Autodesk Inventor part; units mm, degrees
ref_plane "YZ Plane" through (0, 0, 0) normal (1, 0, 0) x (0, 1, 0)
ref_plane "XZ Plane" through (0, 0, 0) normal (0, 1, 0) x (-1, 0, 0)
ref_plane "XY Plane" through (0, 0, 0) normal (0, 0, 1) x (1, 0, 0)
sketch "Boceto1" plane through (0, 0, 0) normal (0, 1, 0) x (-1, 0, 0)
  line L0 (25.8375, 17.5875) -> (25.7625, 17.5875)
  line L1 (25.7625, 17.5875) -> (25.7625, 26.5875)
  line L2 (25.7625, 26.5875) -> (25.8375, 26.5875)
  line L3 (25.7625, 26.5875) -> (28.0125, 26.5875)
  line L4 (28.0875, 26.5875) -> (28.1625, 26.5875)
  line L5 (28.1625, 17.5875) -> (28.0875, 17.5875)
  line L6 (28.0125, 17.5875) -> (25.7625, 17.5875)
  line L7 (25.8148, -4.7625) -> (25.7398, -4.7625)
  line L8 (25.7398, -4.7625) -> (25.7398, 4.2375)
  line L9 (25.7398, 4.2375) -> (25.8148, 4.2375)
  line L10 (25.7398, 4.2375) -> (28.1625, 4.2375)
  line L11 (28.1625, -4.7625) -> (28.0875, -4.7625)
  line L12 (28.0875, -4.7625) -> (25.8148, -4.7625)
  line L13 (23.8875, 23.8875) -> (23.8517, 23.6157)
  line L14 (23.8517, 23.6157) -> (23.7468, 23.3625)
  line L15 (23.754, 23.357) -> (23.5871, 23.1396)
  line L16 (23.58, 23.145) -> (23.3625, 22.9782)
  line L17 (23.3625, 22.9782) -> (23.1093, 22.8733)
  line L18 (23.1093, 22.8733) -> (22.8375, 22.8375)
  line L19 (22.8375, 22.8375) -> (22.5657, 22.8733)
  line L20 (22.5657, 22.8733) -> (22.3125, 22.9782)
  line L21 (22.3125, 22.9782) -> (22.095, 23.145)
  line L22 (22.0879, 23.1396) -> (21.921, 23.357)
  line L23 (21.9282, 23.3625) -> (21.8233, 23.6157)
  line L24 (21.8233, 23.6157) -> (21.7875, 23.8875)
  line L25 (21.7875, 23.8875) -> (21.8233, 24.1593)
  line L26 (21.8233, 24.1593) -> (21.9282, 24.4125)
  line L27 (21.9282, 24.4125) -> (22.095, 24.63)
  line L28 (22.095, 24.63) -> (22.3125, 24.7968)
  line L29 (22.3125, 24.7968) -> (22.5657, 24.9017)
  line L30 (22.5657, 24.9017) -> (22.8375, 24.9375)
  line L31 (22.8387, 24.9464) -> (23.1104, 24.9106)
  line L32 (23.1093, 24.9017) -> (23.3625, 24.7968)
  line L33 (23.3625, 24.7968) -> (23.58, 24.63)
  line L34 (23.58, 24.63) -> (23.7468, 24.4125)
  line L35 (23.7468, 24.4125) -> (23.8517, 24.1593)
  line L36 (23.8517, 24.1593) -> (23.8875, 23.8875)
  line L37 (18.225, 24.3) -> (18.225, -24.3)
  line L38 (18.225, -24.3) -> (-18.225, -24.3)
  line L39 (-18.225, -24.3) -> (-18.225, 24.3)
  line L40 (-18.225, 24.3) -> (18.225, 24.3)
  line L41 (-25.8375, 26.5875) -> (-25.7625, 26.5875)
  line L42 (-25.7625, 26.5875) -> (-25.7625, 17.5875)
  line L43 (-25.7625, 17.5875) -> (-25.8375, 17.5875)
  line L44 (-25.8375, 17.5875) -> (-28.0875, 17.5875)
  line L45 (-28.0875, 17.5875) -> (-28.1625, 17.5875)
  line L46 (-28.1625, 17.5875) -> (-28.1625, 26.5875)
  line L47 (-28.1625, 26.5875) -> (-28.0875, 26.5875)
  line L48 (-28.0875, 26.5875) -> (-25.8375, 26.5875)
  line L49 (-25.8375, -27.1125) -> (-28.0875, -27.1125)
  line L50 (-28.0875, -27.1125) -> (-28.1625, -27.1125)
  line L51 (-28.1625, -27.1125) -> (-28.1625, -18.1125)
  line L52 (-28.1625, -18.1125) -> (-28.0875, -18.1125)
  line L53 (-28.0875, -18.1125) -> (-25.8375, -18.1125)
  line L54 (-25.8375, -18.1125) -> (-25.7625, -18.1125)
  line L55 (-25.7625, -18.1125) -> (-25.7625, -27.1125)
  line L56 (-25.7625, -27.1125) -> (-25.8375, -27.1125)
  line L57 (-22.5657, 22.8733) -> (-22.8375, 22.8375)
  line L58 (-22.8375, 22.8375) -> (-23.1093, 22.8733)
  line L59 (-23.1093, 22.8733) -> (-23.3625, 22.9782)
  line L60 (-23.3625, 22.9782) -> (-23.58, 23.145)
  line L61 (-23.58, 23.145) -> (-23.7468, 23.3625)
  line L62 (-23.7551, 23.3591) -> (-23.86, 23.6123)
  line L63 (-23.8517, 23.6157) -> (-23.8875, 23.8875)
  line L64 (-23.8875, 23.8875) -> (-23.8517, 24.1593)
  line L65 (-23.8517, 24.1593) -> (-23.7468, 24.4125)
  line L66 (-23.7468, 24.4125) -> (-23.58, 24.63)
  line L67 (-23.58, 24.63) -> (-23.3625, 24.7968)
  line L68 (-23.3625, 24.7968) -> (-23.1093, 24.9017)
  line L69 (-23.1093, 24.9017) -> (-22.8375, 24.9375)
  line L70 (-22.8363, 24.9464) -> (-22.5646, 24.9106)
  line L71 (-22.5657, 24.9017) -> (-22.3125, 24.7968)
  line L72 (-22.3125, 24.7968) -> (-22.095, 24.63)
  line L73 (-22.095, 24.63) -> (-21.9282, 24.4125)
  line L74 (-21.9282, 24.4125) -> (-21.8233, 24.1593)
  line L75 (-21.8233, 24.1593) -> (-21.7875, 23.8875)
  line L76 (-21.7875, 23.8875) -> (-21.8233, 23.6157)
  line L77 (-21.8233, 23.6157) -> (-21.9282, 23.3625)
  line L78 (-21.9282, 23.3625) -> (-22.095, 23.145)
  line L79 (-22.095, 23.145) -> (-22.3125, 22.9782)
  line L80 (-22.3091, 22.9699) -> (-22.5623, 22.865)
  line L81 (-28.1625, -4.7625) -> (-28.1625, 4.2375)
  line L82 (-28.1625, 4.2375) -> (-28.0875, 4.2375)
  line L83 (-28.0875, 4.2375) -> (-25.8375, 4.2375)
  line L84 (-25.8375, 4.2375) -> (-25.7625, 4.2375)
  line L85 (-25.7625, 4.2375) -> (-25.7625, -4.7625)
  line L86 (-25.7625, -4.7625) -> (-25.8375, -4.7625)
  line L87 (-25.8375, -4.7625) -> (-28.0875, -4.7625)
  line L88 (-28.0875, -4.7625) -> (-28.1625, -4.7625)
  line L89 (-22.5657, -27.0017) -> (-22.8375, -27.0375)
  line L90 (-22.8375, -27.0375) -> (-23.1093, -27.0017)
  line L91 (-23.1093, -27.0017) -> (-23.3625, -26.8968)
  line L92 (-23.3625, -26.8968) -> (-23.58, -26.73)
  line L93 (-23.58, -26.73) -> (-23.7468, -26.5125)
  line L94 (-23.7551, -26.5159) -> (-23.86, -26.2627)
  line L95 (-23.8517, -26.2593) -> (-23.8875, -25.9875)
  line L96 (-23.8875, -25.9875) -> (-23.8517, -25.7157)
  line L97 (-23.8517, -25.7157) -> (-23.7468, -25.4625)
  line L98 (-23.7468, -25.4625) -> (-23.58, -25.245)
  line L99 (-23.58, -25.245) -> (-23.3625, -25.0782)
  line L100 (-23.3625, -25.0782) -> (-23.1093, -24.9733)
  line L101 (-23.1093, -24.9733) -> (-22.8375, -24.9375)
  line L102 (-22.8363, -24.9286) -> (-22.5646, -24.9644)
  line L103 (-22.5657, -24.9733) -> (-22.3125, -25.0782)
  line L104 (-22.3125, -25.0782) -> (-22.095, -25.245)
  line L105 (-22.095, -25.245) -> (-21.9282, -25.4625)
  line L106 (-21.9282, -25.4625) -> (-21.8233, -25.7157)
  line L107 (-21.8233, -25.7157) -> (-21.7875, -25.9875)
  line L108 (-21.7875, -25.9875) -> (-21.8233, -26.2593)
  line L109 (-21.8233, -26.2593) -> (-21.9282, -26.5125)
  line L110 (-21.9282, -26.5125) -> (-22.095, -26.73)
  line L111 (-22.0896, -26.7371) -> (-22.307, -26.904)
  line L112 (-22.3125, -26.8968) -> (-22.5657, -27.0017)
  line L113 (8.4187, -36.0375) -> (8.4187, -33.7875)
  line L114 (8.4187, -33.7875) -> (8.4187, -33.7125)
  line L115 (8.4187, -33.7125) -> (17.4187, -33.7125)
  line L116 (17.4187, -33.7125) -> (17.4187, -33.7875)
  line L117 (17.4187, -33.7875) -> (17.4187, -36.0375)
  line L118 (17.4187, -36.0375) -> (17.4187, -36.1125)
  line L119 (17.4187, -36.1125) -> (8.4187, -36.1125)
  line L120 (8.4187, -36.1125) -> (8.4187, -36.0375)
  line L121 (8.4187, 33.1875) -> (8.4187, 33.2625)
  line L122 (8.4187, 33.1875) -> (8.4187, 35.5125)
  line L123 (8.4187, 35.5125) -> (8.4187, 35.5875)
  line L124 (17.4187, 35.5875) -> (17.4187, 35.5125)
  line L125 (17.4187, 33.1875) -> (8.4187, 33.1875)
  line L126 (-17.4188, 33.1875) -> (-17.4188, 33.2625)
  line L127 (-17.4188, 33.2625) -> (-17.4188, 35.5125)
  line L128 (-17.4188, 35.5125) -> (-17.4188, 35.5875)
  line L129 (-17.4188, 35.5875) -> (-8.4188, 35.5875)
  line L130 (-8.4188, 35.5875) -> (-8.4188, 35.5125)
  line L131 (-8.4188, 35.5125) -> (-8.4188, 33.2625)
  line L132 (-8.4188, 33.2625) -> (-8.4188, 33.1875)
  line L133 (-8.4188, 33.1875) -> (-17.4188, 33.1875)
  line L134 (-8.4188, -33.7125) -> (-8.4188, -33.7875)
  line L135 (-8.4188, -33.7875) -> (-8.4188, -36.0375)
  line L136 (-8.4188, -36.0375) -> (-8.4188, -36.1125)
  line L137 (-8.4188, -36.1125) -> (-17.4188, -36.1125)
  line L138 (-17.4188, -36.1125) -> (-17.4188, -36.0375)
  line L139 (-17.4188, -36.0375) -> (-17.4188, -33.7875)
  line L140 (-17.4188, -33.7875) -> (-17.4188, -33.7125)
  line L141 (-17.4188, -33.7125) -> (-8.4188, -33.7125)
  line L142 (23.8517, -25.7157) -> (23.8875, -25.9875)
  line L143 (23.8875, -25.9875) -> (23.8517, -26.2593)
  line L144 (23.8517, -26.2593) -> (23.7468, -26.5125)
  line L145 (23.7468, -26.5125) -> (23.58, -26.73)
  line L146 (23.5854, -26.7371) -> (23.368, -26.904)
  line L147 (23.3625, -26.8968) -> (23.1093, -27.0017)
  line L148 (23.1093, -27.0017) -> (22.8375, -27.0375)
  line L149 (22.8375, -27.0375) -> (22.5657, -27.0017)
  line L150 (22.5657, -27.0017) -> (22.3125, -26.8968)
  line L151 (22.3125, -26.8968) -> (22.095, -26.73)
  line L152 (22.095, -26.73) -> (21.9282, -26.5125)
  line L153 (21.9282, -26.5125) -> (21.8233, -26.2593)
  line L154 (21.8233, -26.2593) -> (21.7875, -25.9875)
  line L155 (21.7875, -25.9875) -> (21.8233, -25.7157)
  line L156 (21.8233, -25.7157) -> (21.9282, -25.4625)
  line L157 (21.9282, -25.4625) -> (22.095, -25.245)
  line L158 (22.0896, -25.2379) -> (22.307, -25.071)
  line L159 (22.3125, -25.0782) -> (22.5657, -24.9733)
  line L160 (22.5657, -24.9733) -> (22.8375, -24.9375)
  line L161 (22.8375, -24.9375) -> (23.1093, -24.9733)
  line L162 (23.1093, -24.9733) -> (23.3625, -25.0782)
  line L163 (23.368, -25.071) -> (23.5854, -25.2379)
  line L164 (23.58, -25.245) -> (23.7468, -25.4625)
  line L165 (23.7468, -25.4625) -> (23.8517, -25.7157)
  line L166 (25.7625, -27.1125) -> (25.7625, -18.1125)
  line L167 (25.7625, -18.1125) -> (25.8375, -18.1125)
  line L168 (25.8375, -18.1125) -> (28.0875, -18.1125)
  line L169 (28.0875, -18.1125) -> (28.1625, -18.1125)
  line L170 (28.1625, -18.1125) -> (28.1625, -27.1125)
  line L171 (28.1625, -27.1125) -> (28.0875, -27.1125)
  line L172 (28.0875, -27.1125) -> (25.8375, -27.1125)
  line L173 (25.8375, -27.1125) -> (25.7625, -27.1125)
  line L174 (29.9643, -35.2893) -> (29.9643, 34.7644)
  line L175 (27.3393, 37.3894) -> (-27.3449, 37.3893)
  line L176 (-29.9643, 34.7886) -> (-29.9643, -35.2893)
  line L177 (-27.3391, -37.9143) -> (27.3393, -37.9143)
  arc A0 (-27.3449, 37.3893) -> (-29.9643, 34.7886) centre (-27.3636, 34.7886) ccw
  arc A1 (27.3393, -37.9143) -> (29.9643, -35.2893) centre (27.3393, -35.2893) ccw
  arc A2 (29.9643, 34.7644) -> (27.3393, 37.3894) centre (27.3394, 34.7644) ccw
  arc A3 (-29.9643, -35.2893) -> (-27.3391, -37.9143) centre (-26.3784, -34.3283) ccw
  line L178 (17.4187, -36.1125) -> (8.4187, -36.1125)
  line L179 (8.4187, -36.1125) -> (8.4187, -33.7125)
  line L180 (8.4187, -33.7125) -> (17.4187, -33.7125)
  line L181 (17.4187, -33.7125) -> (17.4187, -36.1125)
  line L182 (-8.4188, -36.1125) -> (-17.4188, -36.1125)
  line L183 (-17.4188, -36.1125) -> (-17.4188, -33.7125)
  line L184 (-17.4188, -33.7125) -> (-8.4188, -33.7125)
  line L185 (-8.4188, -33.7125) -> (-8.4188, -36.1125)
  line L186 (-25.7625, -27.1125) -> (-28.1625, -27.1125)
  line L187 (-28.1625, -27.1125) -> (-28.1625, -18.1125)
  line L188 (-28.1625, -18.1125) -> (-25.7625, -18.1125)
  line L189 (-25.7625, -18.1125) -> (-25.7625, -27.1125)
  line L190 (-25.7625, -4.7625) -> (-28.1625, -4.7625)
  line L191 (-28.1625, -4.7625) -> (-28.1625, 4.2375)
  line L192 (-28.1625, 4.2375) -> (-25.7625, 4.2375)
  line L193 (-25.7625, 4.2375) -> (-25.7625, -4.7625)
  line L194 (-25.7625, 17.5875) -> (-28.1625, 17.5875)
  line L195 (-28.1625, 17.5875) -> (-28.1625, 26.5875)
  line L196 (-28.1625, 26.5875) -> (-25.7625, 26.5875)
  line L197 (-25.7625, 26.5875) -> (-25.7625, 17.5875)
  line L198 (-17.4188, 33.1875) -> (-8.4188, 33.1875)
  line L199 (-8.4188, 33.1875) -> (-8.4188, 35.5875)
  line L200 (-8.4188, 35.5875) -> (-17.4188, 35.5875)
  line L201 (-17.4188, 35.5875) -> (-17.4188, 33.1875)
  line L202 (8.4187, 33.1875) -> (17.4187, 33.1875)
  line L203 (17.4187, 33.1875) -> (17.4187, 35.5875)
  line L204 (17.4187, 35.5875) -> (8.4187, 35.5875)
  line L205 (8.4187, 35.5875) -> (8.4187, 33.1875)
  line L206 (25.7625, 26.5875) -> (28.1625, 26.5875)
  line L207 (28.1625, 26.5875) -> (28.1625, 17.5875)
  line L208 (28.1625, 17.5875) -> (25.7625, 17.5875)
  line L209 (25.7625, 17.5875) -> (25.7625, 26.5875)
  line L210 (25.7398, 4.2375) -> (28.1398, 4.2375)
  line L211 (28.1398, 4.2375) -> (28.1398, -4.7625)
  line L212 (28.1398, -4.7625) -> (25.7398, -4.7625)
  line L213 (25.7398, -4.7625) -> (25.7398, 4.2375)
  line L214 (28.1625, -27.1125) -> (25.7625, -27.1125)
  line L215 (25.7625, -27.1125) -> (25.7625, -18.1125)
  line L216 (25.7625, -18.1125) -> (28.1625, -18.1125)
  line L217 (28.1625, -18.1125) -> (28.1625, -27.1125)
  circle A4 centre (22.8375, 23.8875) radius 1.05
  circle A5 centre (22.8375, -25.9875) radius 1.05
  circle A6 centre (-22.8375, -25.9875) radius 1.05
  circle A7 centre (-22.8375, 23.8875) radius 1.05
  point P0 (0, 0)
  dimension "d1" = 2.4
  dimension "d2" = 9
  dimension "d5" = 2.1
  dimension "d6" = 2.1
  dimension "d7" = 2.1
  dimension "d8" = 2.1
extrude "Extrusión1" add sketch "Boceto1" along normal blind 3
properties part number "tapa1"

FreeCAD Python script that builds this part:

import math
import FreeCAD as App
import Part
import Sketcher
from FreeCAD import Vector

doc = App.newDocument("Part")
params = doc.addObject("Spreadsheet::Sheet", "Params")
for row, (alias, value) in enumerate([
    ("sketch1_diameter", "2.1 mm"),
    ("sketch1_diameter2", "2.1 mm"),
    ("sketch1_diameter3", "2.1 mm"),
    ("sketch1_diameter4", "2.1 mm"),
    ("sketch1_width", "9 mm"),
    ("pad1_length", "3 mm"),
], start=1):
    params.set(f"A{row}", alias)
    params.set(f"B{row}", "=" + value)
    params.setAlias(f"B{row}", alias)

body = doc.addObject("PartDesign::Body", "Body")

# Sketch on XZ plane
sketch1 = body.newObject("Sketcher::SketchObject", "Sketch")
sketch1.AttachmentSupport = (doc.getObject("XZ_Plane"), [""])
sketch1.MapMode = "FlatFace"
sketch1.addGeometry(Part.ArcOfCircle(Part.Circle(Vector(-27.3393, -35.2893, 0), Vector(0, 0, 1), 2.625), math.radians(180), math.radians(270)), False)
sketch1.addGeometry(Part.LineSegment(Vector(-29.9643, -35.2893, 0), Vector(-29.9643, 34.7644, 0)), False)
sketch1.addGeometry(Part.ArcOfCircle(Part.Circle(Vector(-27.3394, 34.7644, 0), Vector(0, 0, 1), 2.6249), math.radians(89.997817), math.radians(180)), False)
sketch1.addGeometry(Part.LineSegment(Vector(-27.3393, 37.3894, 0), Vector(27.3449, 37.3893, 0)), False)
sketch1.addGeometry(Part.ArcOfCircle(Part.Circle(Vector(27.3636, 34.7886, 0), Vector(0, 0, 1), 2.600767), math.radians(0), math.radians(90.411971)), False)
sketch1.addGeometry(Part.LineSegment(Vector(29.9643, 34.7886, 0), Vector(29.9643, -35.2893, 0)), False)
sketch1.addGeometry(Part.ArcOfCircle(Part.Circle(Vector(26.3784, -34.3283, 0), Vector(0, 0, 1), 3.712439), math.radians(-75.002472), math.radians(-15.0024)), False)
sketch1.addGeometry(Part.LineSegment(Vector(27.3391, -37.9143, 0), Vector(-27.3393, -37.9143, 0)), False)
sketch1.addGeometry(Part.Circle(Vector(22.8375, -25.9875, 0), Vector(0, 0, 1), 1.05), False)
sketch1.addGeometry(Part.LineSegment(Vector(25.7625, -27.1125, 0), Vector(28.1625, -27.1125, 0)), False)
sketch1.addGeometry(Part.LineSegment(Vector(28.1625, -27.1125, 0), Vector(28.1625, -18.1125, 0)), False)
sketch1.addGeometry(Part.LineSegment(Vector(28.1625, -18.1125, 0), Vector(25.7625, -18.1125, 0)), False)
sketch1.addGeometry(Part.LineSegment(Vector(25.7625, -18.1125, 0), Vector(25.7625, -27.1125, 0)), False)
sketch1.addGeometry(Part.LineSegment(Vector(17.4188, -33.7125, 0), Vector(8.4188, -33.7125, 0)), False)
sketch1.addGeometry(Part.LineSegment(Vector(8.4188, -33.7125, 0), Vector(8.4188, -36.1125, 0)), False)
sketch1.addGeometry(Part.LineSegment(Vector(8.4188, -36.1125, 0), Vector(17.4188, -36.1125, 0)), False)
sketch1.addGeometry(Part.LineSegment(Vector(17.4188, -36.1125, 0), Vector(17.4188, -33.7125, 0)), False)
sketch1.addGeometry(Part.LineSegment(Vector(25.7625, -4.7625, 0), Vector(28.1625, -4.7625, 0)), False)
sketch1.addGeometry(Part.LineSegment(Vector(28.1625, -4.7625, 0), Vector(28.1625, 4.2375, 0)), False)
sketch1.addGeometry(Part.LineSegment(Vector(28.1625, 4.2375, 0), Vector(25.7625, 4.2375, 0)), False)
sketch1.addGeometry(Part.LineSegment(Vector(25.7625, 4.2375, 0), Vector(25.7625, -4.7625, 0)), False)
sketch1.addGeometry(Part.LineSegment(Vector(-8.4187, -36.1125, 0), Vector(-8.4187, -33.7125, 0)), False)
sketch1.addGeometry(Part.LineSegment(Vector(-8.4187, -33.7125, 0), Vector(-17.4187, -33.7125, 0)), False)
sketch1.addGeometry(Part.LineSegment(Vector(-17.4187, -33.7125, 0), Vector(-17.4187, -36.1125, 0)), False)
sketch1.addGeometry(Part.LineSegment(Vector(-17.4187, -36.1125, 0), Vector(-8.4187, -36.1125, 0)), False)
sketch1.addGeometry(Part.Circle(Vector(-22.8375, -25.9875, 0), Vector(0, 0, 1), 1.05), False)
sketch1.addGeometry(Part.LineSegment(Vector(-28.1625, -27.1125, 0), Vector(-25.7625, -27.1125, 0)), False)
sketch1.addGeometry(Part.LineSegment(Vector(-25.7625, -27.1125, 0), Vector(-25.7625, -18.1125, 0)), False)
sketch1.addGeometry(Part.LineSegment(Vector(-25.7625, -18.1125, 0), Vector(-28.1625, -18.1125, 0)), False)
sketch1.addGeometry(Part.LineSegment(Vector(-28.1625, -18.1125, 0), Vector(-28.1625, -27.1125, 0)), False)
sketch1.addGeometry(Part.LineSegment(Vector(-28.1398, -4.7625, 0), Vector(-25.7398, -4.7625, 0)), False)
sketch1.addGeometry(Part.LineSegment(Vector(-25.7398, -4.7625, 0), Vector(-25.7398, 4.2375, 0)), False)
sketch1.addGeometry(Part.LineSegment(Vector(-25.7398, 4.2375, 0), Vector(-28.1398, 4.2375, 0)), False)
sketch1.addGeometry(Part.LineSegment(Vector(-28.1398, 4.2375, 0), Vector(-28.1398, -4.7625, 0)), False)
sketch1.addGeometry(Part.LineSegment(Vector(28.1625, 26.5875, 0), Vector(25.7625, 26.5875, 0)), False)
sketch1.addGeometry(Part.LineSegment(Vector(25.7625, 26.5875, 0), Vector(25.7625, 17.5875, 0)), False)
sketch1.addGeometry(Part.LineSegment(Vector(25.7625, 17.5875, 0), Vector(28.1625, 17.5875, 0)), False)
sketch1.addGeometry(Part.LineSegment(Vector(28.1625, 17.5875, 0), Vector(28.1625, 26.5875, 0)), False)
sketch1.addGeometry(Part.Circle(Vector(22.8375, 23.8875, 0), Vector(0, 0, 1), 1.05), False)
sketch1.addGeometry(Part.LineSegment(Vector(8.4188, 33.1875, 0), Vector(17.4188, 33.1875, 0)), False)
sketch1.addGeometry(Part.LineSegment(Vector(17.4188, 33.1875, 0), Vector(17.4188, 35.5875, 0)), False)
sketch1.addGeometry(Part.LineSegment(Vector(17.4188, 35.5875, 0), Vector(8.4188, 35.5875, 0)), False)
sketch1.addGeometry(Part.LineSegment(Vector(8.4188, 35.5875, 0), Vector(8.4188, 33.1875, 0)), False)
sketch1.addGeometry(Part.LineSegment(Vector(18.225, 24.3, 0), Vector(-18.225, 24.3, 0)), False)
sketch1.addGeometry(Part.LineSegment(Vector(-18.225, 24.3, 0), Vector(-18.225, -24.3, 0)), False)
sketch1.addGeometry(Part.LineSegment(Vector(-18.225, -24.3, 0), Vector(18.225, -24.3, 0)), False)
sketch1.addGeometry(Part.LineSegment(Vector(18.225, -24.3, 0), Vector(18.225, 24.3, 0)), False)
sketch1.addGeometry(Part.LineSegment(Vector(-17.4187, 33.1875, 0), Vector(-8.4187, 33.1875, 0)), False)
sketch1.addGeometry(Part.LineSegment(Vector(-8.4187, 33.1875, 0), Vector(-8.4187, 35.5875, 0)), False)
sketch1.addGeometry(Part.LineSegment(Vector(-8.4187, 35.5875, 0), Vector(-17.4187, 35.5875, 0)), False)
sketch1.addGeometry(Part.LineSegment(Vector(-17.4187, 35.5875, 0), Vector(-17.4187, 33.1875, 0)), False)
sketch1.addGeometry(Part.LineSegment(Vector(-28.1625, 17.5875, 0), Vector(-25.7625, 17.5875, 0)), False)
sketch1.addGeometry(Part.LineSegment(Vector(-25.7625, 17.5875, 0), Vector(-25.7625, 26.5875, 0)), False)
sketch1.addGeometry(Part.LineSegment(Vector(-25.7625, 26.5875, 0), Vector(-28.1625, 26.5875, 0)), False)
sketch1.addGeometry(Part.LineSegment(Vector(-28.1625, 26.5875, 0), Vector(-28.1625, 17.5875, 0)), False)
sketch1.addGeometry(Part.Circle(Vector(-22.8375, 23.8875, 0), Vector(0, 0, 1), 1.05), False)
sketch1.addConstraint(Sketcher.Constraint("Coincident", 0, 1, 1, 1))
sketch1.addConstraint(Sketcher.Constraint("Coincident", 1, 2, 2, 2))
sketch1.addConstraint(Sketcher.Constraint("Coincident", 2, 1, 3, 1))
sketch1.addConstraint(Sketcher.Constraint("Coincident", 3, 2, 4, 2))
sketch1.addConstraint(Sketcher.Constraint("Coincident", 4, 1, 5, 1))
sketch1.addConstraint(Sketcher.Constraint("Coincident", 5, 2, 6, 2))
sketch1.addConstraint(Sketcher.Constraint("Coincident", 6, 1, 7, 1))
sketch1.addConstraint(Sketcher.Constraint("Coincident", 7, 2, 0, 2))
sketch1.addConstraint(Sketcher.Constraint("Coincident", 9, 2, 10, 1))
sketch1.addConstraint(Sketcher.Constraint("Coincident", 10, 2, 11, 1))
sketch1.addConstraint(Sketcher.Constraint("Coincident", 11, 2, 12, 1))
sketch1.addConstraint(Sketcher.Constraint("Coincident", 12, 2, 9, 1))
sketch1.addConstraint(Sketcher.Constraint("Coincident", 13, 2, 14, 1))
sketch1.addConstraint(Sketcher.Constraint("Coincident", 14, 2, 15, 1))
sketch1.addConstraint(Sketcher.Constraint("Coincident", 15, 2, 16, 1))
sketch1.addConstraint(Sketcher.Constraint("Coincident", 16, 2, 13, 1))
sketch1.addConstraint(Sketcher.Constraint("Coincident", 17, 2, 18, 1))
sketch1.addConstraint(Sketcher.Constraint("Coincident", 18, 2, 19, 1))
sketch1.addConstraint(Sketcher.Constraint("Coincident", 19, 2, 20, 1))
sketch1.addConstraint(Sketcher.Constraint("Coincident", 20, 2, 17, 1))
sketch1.addConstraint(Sketcher.Constraint("Coincident", 21, 2, 22, 1))
sketch1.addConstraint(Sketcher.Constraint("Coincident", 22, 2, 23, 1))
sketch1.addConstraint(Sketcher.Constraint("Coincident", 23, 2, 24, 1))
sketch1.addConstraint(Sketcher.Constraint("Coincident", 24, 2, 21, 1))
sketch1.addConstraint(Sketcher.Constraint("Coincident", 26, 2, 27, 1))
sketch1.addConstraint(Sketcher.Constraint("Coincident", 27, 2, 28, 1))
sketch1.addConstraint(Sketcher.Constraint("Coincident", 28, 2, 29, 1))
sketch1.addConstraint(Sketcher.Constraint("Coincident", 29, 2, 26, 1))
sketch1.addConstraint(Sketcher.Constraint("Coincident", 30, 2, 31, 1))
sketch1.addConstraint(Sketcher.Constraint("Coincident", 31, 2, 32, 1))
sketch1.addConstraint(Sketcher.Constraint("Coincident", 32, 2, 33, 1))
sketch1.addConstraint(Sketcher.Constraint("Coincident", 33, 2, 30, 1))
sketch1.addConstraint(Sketcher.Constraint("Coincident", 34, 2, 35, 1))
sketch1.addConstraint(Sketcher.Constraint("Coincident", 35, 2, 36, 1))
sketch1.addConstraint(Sketcher.Constraint("Coincident", 36, 2, 37, 1))
sketch1.addConstraint(Sketcher.Constraint("Coincident", 37, 2, 34, 1))
sketch1.addConstraint(Sketcher.Constraint("Coincident", 39, 2, 40, 1))
sketch1.addConstraint(Sketcher.Constraint("Coincident", 40, 2, 41, 1))
sketch1.addConstraint(Sketcher.Constraint("Coincident", 41, 2, 42, 1))
sketch1.addConstraint(Sketcher.Constraint("Coincident", 42, 2, 39, 1))
sketch1.addConstraint(Sketcher.Constraint("Coincident", 43, 2, 44, 1))
sketch1.addConstraint(Sketcher.Constraint("Coincident", 44, 2, 45, 1))
sketch1.addConstraint(Sketcher.Constraint("Coincident", 45, 2, 46, 1))
sketch1.addConstraint(Sketcher.Constraint("Coincident", 46, 2, 43, 1))
sketch1.addConstraint(Sketcher.Constraint("Coincident", 47, 2, 48, 1))
sketch1.addConstraint(Sketcher.Constraint("Coincident", 48, 2, 49, 1))
sketch1.addConstraint(Sketcher.Constraint("Coincident", 49, 2, 50, 1))
sketch1.addConstraint(Sketcher.Constraint("Coincident", 50, 2, 47, 1))
sketch1.addConstraint(Sketcher.Constraint("Coincident", 51, 2, 52, 1))
sketch1.addConstraint(Sketcher.Constraint("Coincident", 52, 2, 53, 1))
sketch1.addConstraint(Sketcher.Constraint("Coincident", 53, 2, 54, 1))
sketch1.addConstraint(Sketcher.Constraint("Coincident", 54, 2, 51, 1))
sketch1.addConstraint(Sketcher.Constraint("Vertical", 1))
sketch1.addConstraint(Sketcher.Constraint("Horizontal", 3))
sketch1.addConstraint(Sketcher.Constraint("Vertical", 5))
sketch1.addConstraint(Sketcher.Constraint("Horizontal", 7))
sketch1.addConstraint(Sketcher.Constraint("Horizontal", 9))
sketch1.addConstraint(Sketcher.Constraint("Vertical", 10))
sketch1.addConstraint(Sketcher.Constraint("Horizontal", 11))
sketch1.addConstraint(Sketcher.Constraint("Vertical", 12))
sketch1.addConstraint(Sketcher.Constraint("Horizontal", 13))
sketch1.addConstraint(Sketcher.Constraint("Vertical", 14))
sketch1.addConstraint(Sketcher.Constraint("Horizontal", 15))
sketch1.addConstraint(Sketcher.Constraint("Vertical", 16))
sketch1.addConstraint(Sketcher.Constraint("Horizontal", 17))
sketch1.addConstraint(Sketcher.Constraint("Vertical", 18))
sketch1.addConstraint(Sketcher.Constraint("Horizontal", 19))
sketch1.addConstraint(Sketcher.Constraint("Vertical", 20))
sketch1.addConstraint(Sketcher.Constraint("Vertical", 21))
sketch1.addConstraint(Sketcher.Constraint("Horizontal", 22))
sketch1.addConstraint(Sketcher.Constraint("Vertical", 23))
sketch1.addConstraint(Sketcher.Constraint("Horizontal", 24))
sketch1.addConstraint(Sketcher.Constraint("Horizontal", 26))
sketch1.addConstraint(Sketcher.Constraint("Vertical", 27))
sketch1.addConstraint(Sketcher.Constraint("Horizontal", 28))
sketch1.addConstraint(Sketcher.Constraint("Vertical", 29))
sketch1.addConstraint(Sketcher.Constraint("Horizontal", 30))
sketch1.addConstraint(Sketcher.Constraint("Vertical", 31))
sketch1.addConstraint(Sketcher.Constraint("Horizontal", 32))
sketch1.addConstraint(Sketcher.Constraint("Vertical", 33))
sketch1.addConstraint(Sketcher.Constraint("Horizontal", 34))
sketch1.addConstraint(Sketcher.Constraint("Vertical", 35))
sketch1.addConstraint(Sketcher.Constraint("Horizontal", 36))
sketch1.addConstraint(Sketcher.Constraint("Vertical", 37))
sketch1.addConstraint(Sketcher.Constraint("Horizontal", 39))
sketch1.addConstraint(Sketcher.Constraint("Vertical", 40))
sketch1.addConstraint(Sketcher.Constraint("Horizontal", 41))
sketch1.addConstraint(Sketcher.Constraint("Vertical", 42))
sketch1.addConstraint(Sketcher.Constraint("Horizontal", 43))
sketch1.addConstraint(Sketcher.Constraint("Vertical", 44))
sketch1.addConstraint(Sketcher.Constraint("Horizontal", 45))
sketch1.addConstraint(Sketcher.Constraint("Vertical", 46))
sketch1.addConstraint(Sketcher.Constraint("Horizontal", 47))
sketch1.addConstraint(Sketcher.Constraint("Vertical", 48))
sketch1.addConstraint(Sketcher.Constraint("Horizontal", 49))
sketch1.addConstraint(Sketcher.Constraint("Vertical", 50))
sketch1.addConstraint(Sketcher.Constraint("Horizontal", 51))
sketch1.addConstraint(Sketcher.Constraint("Vertical", 52))
sketch1.addConstraint(Sketcher.Constraint("Horizontal", 53))
sketch1.addConstraint(Sketcher.Constraint("Vertical", 54))
sketch1.addConstraint(Sketcher.Constraint("Diameter", 8, 2.1))
sketch1.addConstraint(Sketcher.Constraint("Diameter", 25, 2.1))
sketch1.addConstraint(Sketcher.Constraint("Diameter", 38, 2.1))
sketch1.addConstraint(Sketcher.Constraint("Diameter", 55, 2.1))
sketch1.addConstraint(Sketcher.Constraint("DistanceX", 13, 2, 13, 1, 9.0))
sketch1.addConstraint(Sketcher.Constraint("DistanceX", 22, 2, 22, 1, 9.0))
sketch1.addConstraint(Sketcher.Constraint("DistanceX", 39, 1, 39, 2, 9.0))
sketch1.addConstraint(Sketcher.Constraint("DistanceX", 47, 1, 47, 2, 9.0))
sketch1.addConstraint(Sketcher.Constraint("DistanceY", 10, 1, 10, 2, 9.0))
sketch1.addConstraint(Sketcher.Constraint("DistanceY", 18, 1, 18, 2, 9.0))
sketch1.addConstraint(Sketcher.Constraint("DistanceY", 27, 1, 27, 2, 9.0))
sketch1.addConstraint(Sketcher.Constraint("DistanceY", 31, 1, 31, 2, 9.0))
sketch1.addConstraint(Sketcher.Constraint("DistanceY", 35, 2, 35, 1, 9.0))
sketch1.addConstraint(Sketcher.Constraint("DistanceY", 52, 1, 52, 2, 9.0))
sketch1.addConstraint(Sketcher.Constraint("DistanceX", 9, 1, 9, 2, 2.4))
sketch1.addConstraint(Sketcher.Constraint("DistanceX", 17, 1, 17, 2, 2.4))
sketch1.addConstraint(Sketcher.Constraint("DistanceX", 26, 1, 26, 2, 2.4))
sketch1.addConstraint(Sketcher.Constraint("DistanceX", 30, 1, 30, 2, 2.4))
sketch1.addConstraint(Sketcher.Constraint("DistanceX", 34, 2, 34, 1, 2.4))
sketch1.addConstraint(Sketcher.Constraint("DistanceX", 51, 1, 51, 2, 2.4))
sketch1.addConstraint(Sketcher.Constraint("DistanceY", 14, 2, 14, 1, 2.4))
sketch1.addConstraint(Sketcher.Constraint("DistanceY", 21, 1, 21, 2, 2.4))
sketch1.addConstraint(Sketcher.Constraint("DistanceY", 40, 1, 40, 2, 2.4))
sketch1.addConstraint(Sketcher.Constraint("DistanceY", 48, 1, 48, 2, 2.4))
sketch1.addConstraint(Sketcher.Constraint("DistanceY", 14, 2, 12, 2, 9.0))
sketch1.addConstraint(Sketcher.Constraint("DistanceY", 34, 2, 40, 2, 9.0))
sketch1.addConstraint(Sketcher.Constraint("DistanceX", 11, 2, 17, 2, 2.4))
sketch1.addConstraint(Sketcher.Constraint("DistanceY", 14, 2, 21, 2, 2.4))
sketch1.addConstraint(Sketcher.Constraint("DistanceX", 35, 2, 18, 2, 2.4))
sketch1.addConstraint(Sketcher.Constraint("DistanceY", 47, 2, 41, 2, 2.4))
sketch1.addConstraint(Sketcher.Constraint("DistanceY", 44, 2, 44, 1, 48.6))
sketch1.addConstraint(Sketcher.Constraint("Radius", 0, 2.625))
sketch1.addConstraint(Sketcher.Constraint("Radius", 2, 2.625))
sketch1.addConstraint(Sketcher.Constraint("DistanceX", 25, 3, 9, 2, 51.0))
sketch1.addConstraint(Sketcher.Constraint("DistanceX", 43, 2, 43, 1, 36.45))
sketch1.addConstraint(Sketcher.Constraint("DistanceY", -1, 1, 43, 2, 24.3))
sketch1.addConstraint(Sketcher.Constraint("Radius", 4, 2.6008))
sketch1.addConstraint(Sketcher.Constraint("Radius", 6, 3.7124))
sketch1.addConstraint(Sketcher.Constraint("DistanceY", 22, 2, 26, 2, 6.6))
sketch1.addConstraint(Sketcher.Constraint("DistanceY", 38, 3, 34, 2, 2.7))
sketch1.addConstraint(Sketcher.Constraint("DistanceY", 55, 3, 47, 2, 9.3))
sketch1.addConstraint(Sketcher.Constraint("DistanceY", 51, 2, 55, 3, 6.3))
sketch1.addConstraint(Sketcher.Constraint("DistanceY", 5, 2, 5, 1, 70.078))
sketch1.addConstraint(Sketcher.Constraint("DistanceY", 10, 2, 17, 2, 13.35))
sketch1.addConstraint(Sketcher.Constraint("DistanceY", 18, 2, 38, 3, 19.65))
sketch1.addConstraint(Sketcher.Constraint("DistanceY", 27, 2, 30, 2, 13.35))
sketch1.addConstraint(Sketcher.Constraint("DistanceX", 3, 1, 3, 2, 54.6842))
sketch1.addConstraint(Sketcher.Constraint("DistanceX", 7, 2, 7, 1, 54.6784))
sketch1.addConstraint(Sketcher.Constraint("DistanceY", 1, 1, 1, 2, 70.0537))
sketch1.addConstraint(Sketcher.Constraint("DistanceX", -1, 1, 3, 2, 27.345))
sketch1.addConstraint(Sketcher.Constraint("DistanceX", -1, 1, 6, 1, 27.339))
sketch1.addConstraint(Sketcher.Constraint("DistanceX", 43, 2, -1, 1, 18.225))
sketch1.addConstraint(Sketcher.Constraint("DistanceX", 2, 3, 4, 3, 54.703))
sketch1.addConstraint(Sketcher.Constraint("DistanceY", 0, 3, 4, 3, 70.078))
sketch1.addConstraint(Sketcher.Constraint("DistanceY", 0, 3, 6, 3, 0.961))
sketch1.addConstraint(Sketcher.Constraint("DistanceX", 8, 3, 6, 3, 3.541))
sketch1.addConstraint(Sketcher.Constraint("DistanceX", 8, 3, 4, 3, 4.526))
sketch1.addConstraint(Sketcher.Constraint("DistanceY", 8, 3, 4, 3, 60.776))
sketch1.addConstraint(Sketcher.Constraint("DistanceX", 25, 3, 8, 3, 45.675))
sketch1.addConstraint(Sketcher.Constraint("DistanceY", 25, 3, 2, 3, 60.752))
sketch1.addConstraint(Sketcher.Constraint("DistanceX", 38, 3, 4, 3, 4.526))
sketch1.addConstraint(Sketcher.Constraint("DistanceY", 38, 3, 4, 3, 10.901))
sketch1.addConstraint(Sketcher.Constraint("DistanceX", 2, 3, 55, 3, 4.502))
sketch1.addConstraint(Sketcher.Constraint("DistanceY", 0, 1, 6, 3, 0.961))
sketch1.addConstraint(Sketcher.Constraint("DistanceX", 26, 2, 25, 3, 2.925))
sketch1.addConstraint(Sketcher.Constraint("DistanceX", 39, 2, 3, 2, 9.926))
sketch1.addConstraint(Sketcher.Constraint("DistanceX", 51, 2, 55, 3, 2.925))
sketch1.addConstraint(Sketcher.Constraint("DistanceY", 0, 3, -1, 1, 35.2893))
sketch1.addConstraint(Sketcher.Constraint("DistanceX", -1, 1, 13, 2, 8.4188))
sketch1.addConstraint(Sketcher.Constraint("DistanceX", 21, 2, -1, 1, 8.4187))
sketch1.addConstraint(Sketcher.Constraint("DistanceX", 30, 2, -1, 1, 25.7398))
sketch1.addConstraint(Sketcher.Constraint("DistanceX", 47, 2, -1, 1, 8.4187))
sketch1.setExpression("Constraints[100]", "Params.sketch1_diameter")
sketch1.setExpression("Constraints[101]", "Params.sketch1_diameter2")
sketch1.setExpression("Constraints[102]", "Params.sketch1_diameter3")
sketch1.setExpression("Constraints[103]", "Params.sketch1_diameter4")
sketch1.setExpression("Constraints[104]", "Params.sketch1_width")
pad1 = body.newObject("PartDesign::Pad", "Pad")
pad1.Profile = sketch1
pad1.setExpression("Length", "Params.pad1_length")
pad1.Reversed = True

doc.recompute()
